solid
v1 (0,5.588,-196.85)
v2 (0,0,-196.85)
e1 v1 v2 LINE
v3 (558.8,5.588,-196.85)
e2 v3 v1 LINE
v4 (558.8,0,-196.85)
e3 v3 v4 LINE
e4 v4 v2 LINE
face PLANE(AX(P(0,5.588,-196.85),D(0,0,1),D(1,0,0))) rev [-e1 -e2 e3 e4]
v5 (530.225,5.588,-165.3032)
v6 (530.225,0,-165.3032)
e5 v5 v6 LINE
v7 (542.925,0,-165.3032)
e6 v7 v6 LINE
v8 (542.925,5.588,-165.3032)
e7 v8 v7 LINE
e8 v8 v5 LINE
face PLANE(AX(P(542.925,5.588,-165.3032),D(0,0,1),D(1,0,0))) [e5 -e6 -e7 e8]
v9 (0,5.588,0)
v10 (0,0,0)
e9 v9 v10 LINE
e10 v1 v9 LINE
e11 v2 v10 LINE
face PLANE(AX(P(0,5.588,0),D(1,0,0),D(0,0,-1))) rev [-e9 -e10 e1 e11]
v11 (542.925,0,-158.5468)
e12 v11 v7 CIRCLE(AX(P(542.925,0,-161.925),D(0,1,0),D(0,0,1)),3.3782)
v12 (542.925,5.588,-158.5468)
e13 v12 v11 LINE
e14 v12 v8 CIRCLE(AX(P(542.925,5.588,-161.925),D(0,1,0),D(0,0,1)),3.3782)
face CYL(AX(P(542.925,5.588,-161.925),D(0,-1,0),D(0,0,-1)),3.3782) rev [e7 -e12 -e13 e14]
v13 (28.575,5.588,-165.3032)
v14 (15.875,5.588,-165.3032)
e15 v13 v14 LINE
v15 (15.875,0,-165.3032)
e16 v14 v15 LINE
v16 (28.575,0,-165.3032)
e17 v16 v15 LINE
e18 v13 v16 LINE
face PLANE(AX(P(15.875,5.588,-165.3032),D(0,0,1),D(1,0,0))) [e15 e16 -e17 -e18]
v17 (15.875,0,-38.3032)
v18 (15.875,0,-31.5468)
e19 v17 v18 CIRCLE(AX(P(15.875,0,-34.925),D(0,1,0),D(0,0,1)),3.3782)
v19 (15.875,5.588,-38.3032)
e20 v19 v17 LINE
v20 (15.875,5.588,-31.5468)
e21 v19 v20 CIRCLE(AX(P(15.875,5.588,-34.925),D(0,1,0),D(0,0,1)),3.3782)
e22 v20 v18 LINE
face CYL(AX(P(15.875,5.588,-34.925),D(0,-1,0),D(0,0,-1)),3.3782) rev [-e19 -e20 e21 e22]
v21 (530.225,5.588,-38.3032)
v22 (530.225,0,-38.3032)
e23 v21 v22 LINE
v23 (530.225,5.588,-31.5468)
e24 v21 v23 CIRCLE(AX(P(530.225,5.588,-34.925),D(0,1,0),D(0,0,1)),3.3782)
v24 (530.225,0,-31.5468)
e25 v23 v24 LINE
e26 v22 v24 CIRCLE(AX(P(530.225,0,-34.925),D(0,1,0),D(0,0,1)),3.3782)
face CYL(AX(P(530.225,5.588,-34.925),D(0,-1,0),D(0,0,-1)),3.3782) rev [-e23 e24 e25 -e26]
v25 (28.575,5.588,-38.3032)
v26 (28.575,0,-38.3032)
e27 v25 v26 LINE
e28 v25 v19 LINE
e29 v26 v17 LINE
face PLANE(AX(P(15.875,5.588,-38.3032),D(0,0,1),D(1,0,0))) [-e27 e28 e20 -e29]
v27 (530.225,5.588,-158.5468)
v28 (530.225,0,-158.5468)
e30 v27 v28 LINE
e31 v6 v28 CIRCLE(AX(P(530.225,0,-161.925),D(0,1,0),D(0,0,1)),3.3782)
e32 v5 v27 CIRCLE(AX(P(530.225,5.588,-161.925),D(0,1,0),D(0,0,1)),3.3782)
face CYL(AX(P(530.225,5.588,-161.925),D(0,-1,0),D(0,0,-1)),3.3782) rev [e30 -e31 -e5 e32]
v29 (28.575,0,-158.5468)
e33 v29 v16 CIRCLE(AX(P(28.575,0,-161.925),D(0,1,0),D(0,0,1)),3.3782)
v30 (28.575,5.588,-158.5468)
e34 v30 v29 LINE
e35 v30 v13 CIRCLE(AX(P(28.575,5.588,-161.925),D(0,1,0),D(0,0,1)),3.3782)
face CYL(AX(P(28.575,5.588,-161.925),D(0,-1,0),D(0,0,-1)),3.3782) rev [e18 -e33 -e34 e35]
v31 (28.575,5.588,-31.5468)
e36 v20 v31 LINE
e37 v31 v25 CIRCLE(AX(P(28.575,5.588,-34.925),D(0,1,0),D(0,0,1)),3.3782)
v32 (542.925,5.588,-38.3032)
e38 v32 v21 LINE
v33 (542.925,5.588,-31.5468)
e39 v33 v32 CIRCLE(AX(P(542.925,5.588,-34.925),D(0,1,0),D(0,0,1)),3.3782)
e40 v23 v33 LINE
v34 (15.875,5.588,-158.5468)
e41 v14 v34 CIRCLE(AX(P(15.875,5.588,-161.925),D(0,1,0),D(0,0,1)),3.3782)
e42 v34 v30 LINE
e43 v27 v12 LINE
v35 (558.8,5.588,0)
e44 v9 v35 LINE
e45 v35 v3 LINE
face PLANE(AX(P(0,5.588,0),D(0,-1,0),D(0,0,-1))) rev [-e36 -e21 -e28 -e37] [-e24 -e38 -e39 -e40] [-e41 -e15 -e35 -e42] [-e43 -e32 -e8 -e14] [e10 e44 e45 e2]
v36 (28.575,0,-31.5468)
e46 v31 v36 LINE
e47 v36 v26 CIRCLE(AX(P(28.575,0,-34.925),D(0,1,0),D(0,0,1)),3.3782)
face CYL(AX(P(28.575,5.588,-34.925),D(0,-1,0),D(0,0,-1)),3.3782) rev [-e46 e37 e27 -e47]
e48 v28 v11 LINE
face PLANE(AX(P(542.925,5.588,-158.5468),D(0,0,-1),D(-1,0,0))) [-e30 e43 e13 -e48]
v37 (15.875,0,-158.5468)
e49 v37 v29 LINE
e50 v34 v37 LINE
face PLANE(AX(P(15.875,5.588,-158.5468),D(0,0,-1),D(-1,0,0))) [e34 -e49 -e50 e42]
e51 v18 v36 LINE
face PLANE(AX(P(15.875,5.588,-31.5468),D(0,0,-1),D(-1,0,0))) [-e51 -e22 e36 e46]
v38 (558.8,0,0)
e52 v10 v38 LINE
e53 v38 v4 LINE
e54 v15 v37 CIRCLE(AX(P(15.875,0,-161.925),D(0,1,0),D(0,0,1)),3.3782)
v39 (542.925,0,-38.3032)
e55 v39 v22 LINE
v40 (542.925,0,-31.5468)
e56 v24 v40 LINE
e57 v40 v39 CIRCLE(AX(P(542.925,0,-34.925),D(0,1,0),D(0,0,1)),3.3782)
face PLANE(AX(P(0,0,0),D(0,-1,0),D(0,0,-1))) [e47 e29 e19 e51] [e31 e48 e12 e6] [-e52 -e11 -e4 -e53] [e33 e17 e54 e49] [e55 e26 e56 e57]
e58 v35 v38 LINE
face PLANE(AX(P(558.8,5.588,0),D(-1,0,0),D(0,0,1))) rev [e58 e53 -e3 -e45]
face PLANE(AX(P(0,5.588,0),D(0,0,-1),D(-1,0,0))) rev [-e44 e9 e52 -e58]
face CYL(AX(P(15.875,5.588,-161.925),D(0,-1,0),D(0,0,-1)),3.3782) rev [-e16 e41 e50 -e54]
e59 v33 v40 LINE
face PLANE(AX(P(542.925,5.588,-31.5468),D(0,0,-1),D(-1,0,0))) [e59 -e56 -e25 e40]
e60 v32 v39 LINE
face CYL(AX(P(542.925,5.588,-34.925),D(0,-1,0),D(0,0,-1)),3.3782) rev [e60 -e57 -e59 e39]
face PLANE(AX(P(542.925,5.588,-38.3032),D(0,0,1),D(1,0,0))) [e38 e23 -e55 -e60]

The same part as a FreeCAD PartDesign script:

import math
import FreeCAD as App
import Part
import Sketcher
Q = App.Units.Quantity


def add_polygon(sketch, points):
    """Adds a closed chain of lines whose ends are joined by coincident constraints."""
    first, n = sketch.GeometryCount, len(points)
    for a, b in zip(points, points[1:] + points[:1]):
        sketch.addGeometry(Part.LineSegment(App.Vector(*a, 0), App.Vector(*b, 0)), False)
    for i in range(n):
        sketch.addConstraint(Sketcher.Constraint("Coincident", first + i, 2, first + (i + 1) % n, 1))

doc = App.newDocument("Part")
body = doc.addObject("PartDesign::Body", "Body")

sketch1 = body.newObject("Sketcher::SketchObject", "Sketch")
sketch1.AttachmentSupport = (doc.getObject("XZ_Plane"), [""])
sketch1.MapMode = "FlatFace"
add_polygon(sketch1, [(0, -196.85), (0, 0), (558.8, 0), (558.8, -196.85)])
sketch1.addGeometry(Part.ArcOfCircle(Part.Circle(App.Vector(15.875, -34.925, 0), App.Vector(0, 0, 1), 3.3782), math.radians(90), math.radians(270)), False)
sketch1.addGeometry(Part.LineSegment(App.Vector(15.875, -38.3032, 0), App.Vector(28.575, -38.3032, 0)), False)
sketch1.addGeometry(Part.ArcOfCircle(Part.Circle(App.Vector(28.575, -34.925, 0), App.Vector(0, 0, 1), 3.3782), math.radians(-90), math.radians(90)), False)
sketch1.addGeometry(Part.LineSegment(App.Vector(28.575, -31.5468, 0), App.Vector(15.875, -31.5468, 0)), False)
sketch1.addGeometry(Part.ArcOfCircle(Part.Circle(App.Vector(542.925, -34.925, 0), App.Vector(0, 0, 1), 3.3782), math.radians(-90), math.radians(90)), False)
sketch1.addGeometry(Part.LineSegment(App.Vector(542.925, -31.5468, 0), App.Vector(530.225, -31.5468, 0)), False)
sketch1.addGeometry(Part.ArcOfCircle(Part.Circle(App.Vector(530.225, -34.925, 0), App.Vector(0, 0, 1), 3.3782), math.radians(90), math.radians(270)), False)
sketch1.addGeometry(Part.LineSegment(App.Vector(530.225, -38.3032, 0), App.Vector(542.925, -38.3032, 0)), False)
sketch1.addGeometry(Part.ArcOfCircle(Part.Circle(App.Vector(15.875, -161.925, 0), App.Vector(0, 0, 1), 3.3782), math.radians(90), math.radians(270)), False)
sketch1.addGeometry(Part.LineSegment(App.Vector(15.875, -165.3032, 0), App.Vector(28.575, -165.3032, 0)), False)
sketch1.addGeometry(Part.ArcOfCircle(Part.Circle(App.Vector(28.575, -161.925, 0), App.Vector(0, 0, 1), 3.3782), math.radians(-90), math.radians(90)), False)
sketch1.addGeometry(Part.LineSegment(App.Vector(28.575, -158.5468, 0), App.Vector(15.875, -158.5468, 0)), False)
sketch1.addGeometry(Part.ArcOfCircle(Part.Circle(App.Vector(542.925, -161.925, 0), App.Vector(0, 0, 1), 3.3782), math.radians(-90), math.radians(90)), False)
sketch1.addGeometry(Part.LineSegment(App.Vector(542.925, -158.5468, 0), App.Vector(530.225, -158.5468, 0)), False)
sketch1.addGeometry(Part.ArcOfCircle(Part.Circle(App.Vector(530.225, -161.925, 0), App.Vector(0, 0, 1), 3.3782), math.radians(90), math.radians(270)), False)
sketch1.addGeometry(Part.LineSegment(App.Vector(530.225, -165.3032, 0), App.Vector(542.925, -165.3032, 0)), False)
sketch1.addConstraint(Sketcher.Constraint("Tangent", 4, 2, 5, 1))
sketch1.addConstraint(Sketcher.Constraint("Tangent", 5, 2, 6, 1))
sketch1.addConstraint(Sketcher.Constraint("Tangent", 6, 2, 7, 1))
sketch1.addConstraint(Sketcher.Constraint("Tangent", 7, 2, 4, 1))
sketch1.addConstraint(Sketcher.Constraint("Tangent", 8, 2, 9, 1))
sketch1.addConstraint(Sketcher.Constraint("Tangent", 9, 2, 10, 1))
sketch1.addConstraint(Sketcher.Constraint("Tangent", 10, 2, 11, 1))
sketch1.addConstraint(Sketcher.Constraint("Tangent", 11, 2, 8, 1))
sketch1.addConstraint(Sketcher.Constraint("Tangent", 12, 2, 13, 1))
sketch1.addConstraint(Sketcher.Constraint("Tangent", 13, 2, 14, 1))
sketch1.addConstraint(Sketcher.Constraint("Tangent", 14, 2, 15, 1))
sketch1.addConstraint(Sketcher.Constraint("Tangent", 15, 2, 12, 1))
sketch1.addConstraint(Sketcher.Constraint("Tangent", 16, 2, 17, 1))
sketch1.addConstraint(Sketcher.Constraint("Tangent", 17, 2, 18, 1))
sketch1.addConstraint(Sketcher.Constraint("Tangent", 18, 2, 19, 1))
sketch1.addConstraint(Sketcher.Constraint("Tangent", 19, 2, 16, 1))
sketch1.addConstraint(Sketcher.Constraint("Vertical", 0))
sketch1.addConstraint(Sketcher.Constraint("Horizontal", 1))
sketch1.addConstraint(Sketcher.Constraint("Vertical", 2))
sketch1.addConstraint(Sketcher.Constraint("Horizontal", 3))
sketch1.addConstraint(Sketcher.Constraint("Horizontal", 5))
sketch1.addConstraint(Sketcher.Constraint("Horizontal", 7))
sketch1.addConstraint(Sketcher.Constraint("Horizontal", 9))
sketch1.addConstraint(Sketcher.Constraint("Horizontal", 11))
sketch1.addConstraint(Sketcher.Constraint("Horizontal", 13))
sketch1.addConstraint(Sketcher.Constraint("Horizontal", 15))
sketch1.addConstraint(Sketcher.Constraint("Horizontal", 17))
sketch1.addConstraint(Sketcher.Constraint("Horizontal", 19))
sketch1.addConstraint(Sketcher.Constraint("Coincident", 0, 2, -1, 1))
sketch1.addConstraint(Sketcher.Constraint("Equal", 6, 8))
sketch1.addConstraint(Sketcher.Constraint("Equal", 10, 12))
sketch1.addConstraint(Sketcher.Constraint("Equal", 14, 16))
sketch1.addConstraint(Sketcher.Constraint("Horizontal", 6, 3, 8, 3))
sketch1.addConstraint(Sketcher.Constraint("Horizontal", 14, 3, 16, 3))
sketch1.addConstraint(Sketcher.Constraint("Vertical", 4, 3, 12, 3))
sketch1.addConstraint(Sketcher.Constraint("Vertical", 6, 3, 14, 3))
sketch1.addConstraint(Sketcher.Constraint("Vertical", 8, 3, 16, 3))
sketch1.addConstraint(Sketcher.Constraint("Vertical", 10, 3, 18, 3))
sketch1.addConstraint(Sketcher.Constraint("Equal", 7, 9))
sketch1.addConstraint(Sketcher.Constraint("DistanceX", 1, 1, 1, 2, Q("22 in")))
sketch1.addConstraint(Sketcher.Constraint("DistanceX", 5, 1, 5, 2, Q("0.5 in")))
sketch1.addConstraint(Sketcher.Constraint("Radius", 4, Q("0.133 in")))
sketch1.addConstraint(Sketcher.Constraint("DistanceY", 12, 3, 4, 3, Q("5 in")))
sketch1.addConstraint(Sketcher.Constraint("DistanceY", 0, 1, 0, 2, Q("7.75 in")))
sketch1.addConstraint(Sketcher.Constraint("DistanceX", 6, 3, 8, 3, Q("20.25 in")))
sketch1.addConstraint(Sketcher.Constraint("DistanceX", -1, 1, 4, 3, Q("0.625 in")))
sketch1.addConstraint(Sketcher.Constraint("DistanceY", 4, 3, -1, 1, Q("1.375 in")))
pad1 = body.newObject("PartDesign::Pad", "Pad")
pad1.Profile = sketch1
pad1.Length = Q("0.22 in")
pad1.Reversed = True

doc.recompute()
